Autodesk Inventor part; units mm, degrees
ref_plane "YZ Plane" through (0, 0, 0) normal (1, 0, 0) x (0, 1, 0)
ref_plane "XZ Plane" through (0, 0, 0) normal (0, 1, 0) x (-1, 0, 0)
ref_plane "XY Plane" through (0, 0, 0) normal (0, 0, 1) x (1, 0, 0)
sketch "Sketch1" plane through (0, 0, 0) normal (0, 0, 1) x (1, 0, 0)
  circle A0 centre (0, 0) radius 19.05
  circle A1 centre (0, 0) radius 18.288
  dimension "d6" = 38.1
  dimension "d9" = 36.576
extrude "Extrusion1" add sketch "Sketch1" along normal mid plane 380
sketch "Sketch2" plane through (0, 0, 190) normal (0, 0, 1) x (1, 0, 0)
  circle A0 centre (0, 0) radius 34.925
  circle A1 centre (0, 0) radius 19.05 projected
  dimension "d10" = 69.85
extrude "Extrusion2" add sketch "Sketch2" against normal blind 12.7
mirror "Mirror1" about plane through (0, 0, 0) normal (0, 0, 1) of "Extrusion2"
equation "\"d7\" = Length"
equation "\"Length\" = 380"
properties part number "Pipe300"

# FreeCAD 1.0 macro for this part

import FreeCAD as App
import Part
import Sketcher
Q = App.Units.Quantity

doc = App.newDocument("Part")
body = doc.addObject("PartDesign::Body", "Body")

sketch1 = body.newObject("Sketcher::SketchObject", "Sketch")
sketch1.AttachmentSupport = (doc.getObject("XY_Plane"), [""])
sketch1.MapMode = "FlatFace"
sketch1.addGeometry(Part.Circle(App.Vector(0, 0, 0), App.Vector(0, 0, 1), 19.05), False)
sketch1.addGeometry(Part.Circle(App.Vector(0, 0, 0), App.Vector(0, 0, 1), 18.288), False)
sketch1.addConstraint(Sketcher.Constraint("Coincident", 0, 3, -1, 1))
sketch1.addConstraint(Sketcher.Constraint("Coincident", 1, 3, -1, 1))
sketch1.addConstraint(Sketcher.Constraint("Diameter", 0, Q("1.5 in")))
sketch1.addConstraint(Sketcher.Constraint("Diameter", 1, Q("1.44 in")))
pad1 = body.newObject("PartDesign::Pad", "Pad")
pad1.Profile = sketch1
pad1.Length = 380
pad1.Midplane = True

sketch2 = body.newObject("Sketcher::SketchObject", "Sketch001")
sketch2.AttachmentSupport = (doc.getObject("XY_Plane"), [""])
sketch2.MapMode = "FlatFace"
sketch2.AttachmentOffset = App.Placement(App.Vector(0, 0, 190), App.Rotation())
sketch2.addGeometry(Part.Circle(App.Vector(0, 0, 0), App.Vector(0, 0, 1), 34.925), False)
sketch2.addGeometry(Part.Circle(App.Vector(0, 0, 0), App.Vector(0, 0, 1), 19.05), False)
sketch2.addConstraint(Sketcher.Constraint("Coincident", 0, 3, -1, 1))
sketch2.addConstraint(Sketcher.Constraint("Coincident", 1, 3, -1, 1))
sketch2.addConstraint(Sketcher.Constraint("Diameter", 0, Q("2.75 in")))
sketch2.addConstraint(Sketcher.Constraint("Diameter", 1, Q("1.5 in")))
pad2 = body.newObject("PartDesign::Pad", "Pad001")
pad2.Profile = sketch2
pad2.Length = Q("0.5 in")
pad2.Reversed = True
doc.recompute()

mirrored = body.newObject("PartDesign::Mirrored", "Mirrored")
mirrored.Originals = [pad2]
mirrored.MirrorPlane = (doc.getObject("XY_Plane"), [""])
body.Tip = mirrored

doc.recompute()
